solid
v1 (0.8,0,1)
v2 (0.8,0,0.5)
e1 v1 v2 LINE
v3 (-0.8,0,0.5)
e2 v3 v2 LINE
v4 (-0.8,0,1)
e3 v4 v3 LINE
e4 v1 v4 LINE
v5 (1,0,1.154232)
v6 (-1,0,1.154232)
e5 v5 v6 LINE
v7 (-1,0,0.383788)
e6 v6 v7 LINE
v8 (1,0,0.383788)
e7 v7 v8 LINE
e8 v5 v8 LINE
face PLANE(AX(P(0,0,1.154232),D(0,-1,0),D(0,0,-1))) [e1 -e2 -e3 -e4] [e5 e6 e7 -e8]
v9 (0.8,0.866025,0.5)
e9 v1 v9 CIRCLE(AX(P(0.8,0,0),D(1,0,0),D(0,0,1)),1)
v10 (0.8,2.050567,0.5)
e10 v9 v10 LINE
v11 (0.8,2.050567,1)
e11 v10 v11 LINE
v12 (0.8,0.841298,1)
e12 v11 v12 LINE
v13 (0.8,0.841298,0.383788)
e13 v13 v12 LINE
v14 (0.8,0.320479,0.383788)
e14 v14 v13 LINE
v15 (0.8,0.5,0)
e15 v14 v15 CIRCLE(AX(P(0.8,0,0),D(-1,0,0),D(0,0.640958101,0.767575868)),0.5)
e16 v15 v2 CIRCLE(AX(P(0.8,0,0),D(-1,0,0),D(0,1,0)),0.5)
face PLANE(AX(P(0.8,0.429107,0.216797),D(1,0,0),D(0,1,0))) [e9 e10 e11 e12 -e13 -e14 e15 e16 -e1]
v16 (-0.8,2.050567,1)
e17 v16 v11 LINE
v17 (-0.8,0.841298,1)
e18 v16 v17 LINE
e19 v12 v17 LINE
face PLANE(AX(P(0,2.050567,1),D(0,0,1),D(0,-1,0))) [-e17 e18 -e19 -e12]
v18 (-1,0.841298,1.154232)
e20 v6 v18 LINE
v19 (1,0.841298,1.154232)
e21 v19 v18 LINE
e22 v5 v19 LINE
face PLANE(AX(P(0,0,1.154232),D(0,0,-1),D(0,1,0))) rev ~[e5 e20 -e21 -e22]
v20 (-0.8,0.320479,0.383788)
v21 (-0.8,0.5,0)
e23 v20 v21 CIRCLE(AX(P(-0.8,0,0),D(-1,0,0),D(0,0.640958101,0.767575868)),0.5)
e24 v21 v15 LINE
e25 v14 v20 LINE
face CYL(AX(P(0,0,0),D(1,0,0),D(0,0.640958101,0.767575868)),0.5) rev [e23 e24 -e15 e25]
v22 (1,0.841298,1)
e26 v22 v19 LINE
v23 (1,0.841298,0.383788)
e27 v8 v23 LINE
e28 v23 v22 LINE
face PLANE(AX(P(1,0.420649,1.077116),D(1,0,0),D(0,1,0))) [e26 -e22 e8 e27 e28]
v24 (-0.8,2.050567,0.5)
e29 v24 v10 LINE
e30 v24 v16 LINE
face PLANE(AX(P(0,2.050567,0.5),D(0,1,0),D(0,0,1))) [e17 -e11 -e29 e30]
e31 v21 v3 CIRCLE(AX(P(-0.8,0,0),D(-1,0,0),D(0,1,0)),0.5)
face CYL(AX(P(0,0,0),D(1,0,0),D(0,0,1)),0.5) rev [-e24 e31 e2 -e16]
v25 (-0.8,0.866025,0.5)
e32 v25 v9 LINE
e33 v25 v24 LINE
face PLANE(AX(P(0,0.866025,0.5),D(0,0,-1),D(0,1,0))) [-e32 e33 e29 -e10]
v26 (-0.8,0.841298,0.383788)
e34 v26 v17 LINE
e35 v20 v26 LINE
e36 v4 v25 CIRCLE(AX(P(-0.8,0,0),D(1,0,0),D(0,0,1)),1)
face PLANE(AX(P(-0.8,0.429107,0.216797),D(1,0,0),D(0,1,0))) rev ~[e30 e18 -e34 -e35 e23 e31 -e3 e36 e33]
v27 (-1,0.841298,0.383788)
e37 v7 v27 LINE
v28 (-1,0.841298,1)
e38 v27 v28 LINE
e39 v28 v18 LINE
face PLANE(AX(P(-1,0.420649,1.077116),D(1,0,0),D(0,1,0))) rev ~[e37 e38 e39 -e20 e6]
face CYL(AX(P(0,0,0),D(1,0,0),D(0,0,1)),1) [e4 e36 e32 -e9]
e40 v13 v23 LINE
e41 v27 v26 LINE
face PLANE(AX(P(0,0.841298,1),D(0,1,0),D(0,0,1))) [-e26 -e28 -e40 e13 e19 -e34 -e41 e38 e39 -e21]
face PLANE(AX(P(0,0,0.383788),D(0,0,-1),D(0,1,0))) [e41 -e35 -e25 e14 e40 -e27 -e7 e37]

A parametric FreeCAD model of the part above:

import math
import FreeCAD as App
import Part
import Sketcher


def add_polygon(sketch, points):
    """Adds a closed chain of lines whose ends are joined by coincident constraints."""
    first, n = sketch.GeometryCount, len(points)
    for a, b in zip(points, points[1:] + points[:1]):
        sketch.addGeometry(Part.LineSegment(App.Vector(*a, 0), App.Vector(*b, 0)), False)
    for i in range(n):
        sketch.addConstraint(Sketcher.Constraint("Coincident", first + i, 2, first + (i + 1) % n, 1))

doc = App.newDocument("Part")
body = doc.addObject("PartDesign::Body", "Body")

sketch1 = body.newObject("Sketcher::SketchObject", "Sketch")
sketch1.AttachmentSupport = (doc.getObject("YZ_Plane"), [""])
sketch1.MapMode = "FlatFace"
sketch1.addGeometry(Part.ArcOfCircle(Part.Circle(App.Vector(0, 0, 0), App.Vector(0, 0, 1), 1), math.radians(90), math.radians(390)), False)
sketch1.addGeometry(Part.LineSegment(App.Vector(0.866025, 0.5, 0), App.Vector(2.050567, 0.5, 0)), False)
sketch1.addGeometry(Part.LineSegment(App.Vector(2.050567, 0.5, 0), App.Vector(2.050567, 1, 0)), False)
sketch1.addGeometry(Part.LineSegment(App.Vector(2.050567, 1, 0), App.Vector(0, 1, 0)), False)
sketch1.addGeometry(Part.ArcOfCircle(Part.Circle(App.Vector(0, 0, 0), App.Vector(0, 0, 1), 0.5), math.radians(0), math.radians(50.1367)), False)
sketch1.addGeometry(Part.ArcOfCircle(Part.Circle(App.Vector(0, 0, 0), App.Vector(0, 0, 1), 0.5), math.radians(90), math.radians(360)), False)
sketch1.addGeometry(Part.ArcOfCircle(Part.Circle(App.Vector(0, 0, 0), App.Vector(0, 0, 1), 0.5), math.radians(50.1367), math.radians(90)), False)
sketch1.addConstraint(Sketcher.Constraint("Coincident", 0, 2, 1, 1))
sketch1.addConstraint(Sketcher.Constraint("Coincident", 1, 2, 2, 1))
sketch1.addConstraint(Sketcher.Constraint("Coincident", 2, 2, 3, 1))
sketch1.addConstraint(Sketcher.Constraint("Tangent", 3, 2, 0, 1))
sketch1.addConstraint(Sketcher.Constraint("Tangent", 4, 1, 5, 2))
sketch1.addConstraint(Sketcher.Constraint("Tangent", 5, 1, 6, 2))
sketch1.addConstraint(Sketcher.Constraint("Tangent", 6, 1, 4, 2))
sketch1.addConstraint(Sketcher.Constraint("Horizontal", 1))
sketch1.addConstraint(Sketcher.Constraint("Vertical", 2))
sketch1.addConstraint(Sketcher.Constraint("Horizontal", 3))
sketch1.addConstraint(Sketcher.Constraint("Coincident", 0, 3, -1, 1))
sketch1.addConstraint(Sketcher.Constraint("Coincident", 4, 3, -1, 1))
sketch1.addConstraint(Sketcher.Constraint("PointOnObject", 4, 1, -1))
sketch1.addConstraint(Sketcher.Constraint("PointOnObject", 5, 1, -2))
sketch1.addConstraint(Sketcher.Constraint("Horizontal", 1, 2, 5, 1))
sketch1.addConstraint(Sketcher.Constraint("Radius", 0, 1.0))
sketch1.addConstraint(Sketcher.Constraint("Radius", 4, 0.5))
sketch1.addConstraint(Sketcher.Constraint("DistanceX", 1, 1, 1, 2, 1.184542))
sketch1.addConstraint(Sketcher.Constraint("DistanceX", -1, 1, 6, 1, 0.320479))
pad1 = body.newObject("PartDesign::Pad", "Pad")
pad1.Profile = sketch1
pad1.Length = 1.6
pad1.Midplane = True

sketch2 = body.newObject("Sketcher::SketchObject", "Sketch001")
sketch2.AttachmentSupport = (doc.getObject("YZ_Plane"), [""])
sketch2.MapMode = "FlatFace"
add_polygon(sketch2, [(0, 1.154232), (0, 0.383788), (0.841298, 0.383788), (0.841298, 1), (0.841298, 1.154232)])
sketch2.addConstraint(Sketcher.Constraint("Vertical", 0))
sketch2.addConstraint(Sketcher.Constraint("Horizontal", 1))
sketch2.addConstraint(Sketcher.Constraint("Vertical", 2))
sketch2.addConstraint(Sketcher.Constraint("Vertical", 3))
sketch2.addConstraint(Sketcher.Constraint("Horizontal", 4))
sketch2.addConstraint(Sketcher.Constraint("PointOnObject", 0, 2, -2))
sketch2.addConstraint(Sketcher.Constraint("DistanceY", -1, 1, 2, 2, 1.0))
sketch2.addConstraint(Sketcher.Constraint("DistanceY", 3, 1, 3, 2, 0.154232))
sketch2.addConstraint(Sketcher.Constraint("DistanceX", 1, 1, 1, 2, 0.841298))
sketch2.addConstraint(Sketcher.Constraint("DistanceY", 0, 2, 0, 1, 0.770444))
pad2 = body.newObject("PartDesign::Pad", "Pad001")
pad2.Profile = sketch2
pad2.Length = 2
pad2.Midplane = True

doc.recompute()
